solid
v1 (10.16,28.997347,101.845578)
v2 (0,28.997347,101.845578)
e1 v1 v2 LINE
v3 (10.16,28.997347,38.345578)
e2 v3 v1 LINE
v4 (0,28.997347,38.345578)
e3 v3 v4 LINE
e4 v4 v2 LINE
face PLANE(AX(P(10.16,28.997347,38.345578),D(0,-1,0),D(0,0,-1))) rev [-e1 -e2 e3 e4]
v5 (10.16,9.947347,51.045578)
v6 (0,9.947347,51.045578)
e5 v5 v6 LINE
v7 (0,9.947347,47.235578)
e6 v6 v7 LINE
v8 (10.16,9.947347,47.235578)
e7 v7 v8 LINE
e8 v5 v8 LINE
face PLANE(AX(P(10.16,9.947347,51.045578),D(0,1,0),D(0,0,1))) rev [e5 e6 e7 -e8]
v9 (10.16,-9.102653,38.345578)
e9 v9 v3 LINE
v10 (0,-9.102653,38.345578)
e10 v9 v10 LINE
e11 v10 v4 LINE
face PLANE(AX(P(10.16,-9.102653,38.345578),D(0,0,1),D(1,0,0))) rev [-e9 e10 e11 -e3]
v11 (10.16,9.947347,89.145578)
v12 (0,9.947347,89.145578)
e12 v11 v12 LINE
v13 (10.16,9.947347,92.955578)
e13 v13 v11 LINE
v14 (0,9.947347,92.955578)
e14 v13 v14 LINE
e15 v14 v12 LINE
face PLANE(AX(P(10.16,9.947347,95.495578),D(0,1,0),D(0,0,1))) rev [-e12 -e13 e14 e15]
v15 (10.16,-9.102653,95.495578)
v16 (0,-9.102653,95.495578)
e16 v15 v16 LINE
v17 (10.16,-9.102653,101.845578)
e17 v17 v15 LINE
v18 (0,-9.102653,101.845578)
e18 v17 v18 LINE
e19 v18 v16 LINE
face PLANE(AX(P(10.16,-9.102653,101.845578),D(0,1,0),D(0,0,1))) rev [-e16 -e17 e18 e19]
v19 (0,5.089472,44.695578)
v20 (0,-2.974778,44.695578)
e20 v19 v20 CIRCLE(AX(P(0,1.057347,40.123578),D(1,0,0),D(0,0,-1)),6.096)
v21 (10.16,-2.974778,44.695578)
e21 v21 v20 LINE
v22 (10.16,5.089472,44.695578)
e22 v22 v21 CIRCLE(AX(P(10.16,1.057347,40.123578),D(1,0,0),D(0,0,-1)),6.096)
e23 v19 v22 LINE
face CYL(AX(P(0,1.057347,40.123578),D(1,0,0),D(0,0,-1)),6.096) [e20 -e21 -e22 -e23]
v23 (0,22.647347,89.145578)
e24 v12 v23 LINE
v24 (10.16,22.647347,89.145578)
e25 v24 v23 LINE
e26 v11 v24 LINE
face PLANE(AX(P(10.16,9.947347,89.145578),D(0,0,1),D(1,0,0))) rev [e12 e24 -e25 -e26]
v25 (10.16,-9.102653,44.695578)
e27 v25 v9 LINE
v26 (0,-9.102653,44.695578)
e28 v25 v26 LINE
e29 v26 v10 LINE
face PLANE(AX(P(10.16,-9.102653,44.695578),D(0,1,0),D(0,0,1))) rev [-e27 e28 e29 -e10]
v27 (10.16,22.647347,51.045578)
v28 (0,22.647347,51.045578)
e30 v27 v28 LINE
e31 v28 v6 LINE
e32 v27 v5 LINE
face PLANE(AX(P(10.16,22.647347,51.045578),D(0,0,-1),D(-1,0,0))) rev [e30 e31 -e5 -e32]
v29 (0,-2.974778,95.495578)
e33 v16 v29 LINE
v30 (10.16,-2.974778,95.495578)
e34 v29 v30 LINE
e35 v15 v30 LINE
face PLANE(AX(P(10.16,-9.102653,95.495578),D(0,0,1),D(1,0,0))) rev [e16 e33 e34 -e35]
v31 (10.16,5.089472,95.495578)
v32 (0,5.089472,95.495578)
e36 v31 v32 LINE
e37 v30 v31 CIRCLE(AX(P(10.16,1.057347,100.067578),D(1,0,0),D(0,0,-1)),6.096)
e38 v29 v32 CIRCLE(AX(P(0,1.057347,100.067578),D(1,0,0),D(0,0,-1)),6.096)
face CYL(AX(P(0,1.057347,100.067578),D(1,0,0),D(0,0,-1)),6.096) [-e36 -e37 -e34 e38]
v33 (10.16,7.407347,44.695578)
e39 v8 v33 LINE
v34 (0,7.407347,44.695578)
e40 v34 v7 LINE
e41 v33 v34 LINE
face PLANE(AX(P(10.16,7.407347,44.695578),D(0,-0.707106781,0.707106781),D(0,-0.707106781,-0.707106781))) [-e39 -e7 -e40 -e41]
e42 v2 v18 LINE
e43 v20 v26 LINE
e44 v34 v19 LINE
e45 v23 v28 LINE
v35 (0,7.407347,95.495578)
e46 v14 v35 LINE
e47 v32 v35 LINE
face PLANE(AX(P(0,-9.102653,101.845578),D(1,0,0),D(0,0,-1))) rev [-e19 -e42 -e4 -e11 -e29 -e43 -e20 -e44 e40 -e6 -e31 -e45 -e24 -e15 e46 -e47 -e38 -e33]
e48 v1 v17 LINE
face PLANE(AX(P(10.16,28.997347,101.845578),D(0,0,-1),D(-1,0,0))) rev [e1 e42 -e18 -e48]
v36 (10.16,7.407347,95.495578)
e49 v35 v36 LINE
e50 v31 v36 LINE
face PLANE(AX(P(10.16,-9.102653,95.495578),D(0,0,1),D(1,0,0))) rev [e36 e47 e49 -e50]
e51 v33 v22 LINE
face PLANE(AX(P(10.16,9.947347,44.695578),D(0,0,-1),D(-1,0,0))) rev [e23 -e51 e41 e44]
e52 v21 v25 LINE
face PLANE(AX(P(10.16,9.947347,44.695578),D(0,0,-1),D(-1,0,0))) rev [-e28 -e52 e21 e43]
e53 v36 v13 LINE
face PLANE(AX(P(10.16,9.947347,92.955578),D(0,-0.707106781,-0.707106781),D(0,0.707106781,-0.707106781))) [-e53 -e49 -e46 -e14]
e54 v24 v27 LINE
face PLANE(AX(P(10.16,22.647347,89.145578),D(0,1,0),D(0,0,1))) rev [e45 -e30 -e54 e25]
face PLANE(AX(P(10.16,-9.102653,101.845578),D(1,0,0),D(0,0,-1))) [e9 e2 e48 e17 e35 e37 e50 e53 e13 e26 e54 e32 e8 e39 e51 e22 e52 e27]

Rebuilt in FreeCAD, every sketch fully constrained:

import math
import FreeCAD as App
import Part
import Sketcher
Q = App.Units.Quantity


def edges_at(feature, points):
    """Names of the edges that pass closest to the given points."""
    edges = feature.Shape.Edges
    near = lambda p: min(range(len(edges)), key=lambda i: edges[i].distToShape(Part.Vertex(*p))[0])
    return sorted({f"Edge{near(p) + 1}" for p in points})

doc = App.newDocument("Part")
body = doc.addObject("PartDesign::Body", "Body")

# Sketch on YZ plane
sketch1 = body.newObject("Sketcher::SketchObject", "Sketch")
sketch1.AttachmentSupport = (doc.getObject("YZ_Plane"), [""])
sketch1.MapMode = "FlatFace"
sketch1.addGeometry(Part.LineSegment(App.Vector(-9, 102, 0), App.Vector(-9, 95, 0)), False)
sketch1.addGeometry(Part.LineSegment(App.Vector(-9, 95, 0), App.Vector(10, 95, 0)), False)
sketch1.addGeometry(Part.LineSegment(App.Vector(10, 95, 0), App.Vector(10, 89, 0)), False)
sketch1.addGeometry(Part.LineSegment(App.Vector(10, 89, 0), App.Vector(23, 89, 0)), False)
sketch1.addGeometry(Part.LineSegment(App.Vector(23, 89, 0), App.Vector(23, 51, 0)), False)
sketch1.addGeometry(Part.LineSegment(App.Vector(23, 51, 0), App.Vector(10, 51, 0)), False)
sketch1.addGeometry(Part.LineSegment(App.Vector(10, 51, 0), App.Vector(10, 45, 0)), False)
sketch1.addGeometry(Part.LineSegment(App.Vector(10, 45, 0), App.Vector(-9, 45, 0)), False)
sketch1.addGeometry(Part.LineSegment(App.Vector(-9, 45, 0), App.Vector(-9, 38, 0)), False)
sketch1.addGeometry(Part.LineSegment(App.Vector(-9, 38, 0), App.Vector(29, 38, 0)), False)
sketch1.addGeometry(Part.LineSegment(App.Vector(29, 38, 0), App.Vector(29, 102, 0)), False)
sketch1.addGeometry(Part.LineSegment(App.Vector(29, 102, 0), App.Vector(-9, 102, 0)), False)
sketch1.addConstraint(Sketcher.Constraint("Coincident", 0, 2, 1, 1))
sketch1.addConstraint(Sketcher.Constraint("Coincident", 1, 2, 2, 1))
sketch1.addConstraint(Sketcher.Constraint("Coincident", 2, 2, 3, 1))
sketch1.addConstraint(Sketcher.Constraint("Coincident", 3, 2, 4, 1))
sketch1.addConstraint(Sketcher.Constraint("Coincident", 4, 2, 5, 1))
sketch1.addConstraint(Sketcher.Constraint("Coincident", 5, 2, 6, 1))
sketch1.addConstraint(Sketcher.Constraint("Coincident", 6, 2, 7, 1))
sketch1.addConstraint(Sketcher.Constraint("Coincident", 7, 2, 8, 1))
sketch1.addConstraint(Sketcher.Constraint("Coincident", 8, 2, 9, 1))
sketch1.addConstraint(Sketcher.Constraint("Coincident", 9, 2, 10, 1))
sketch1.addConstraint(Sketcher.Constraint("Coincident", 10, 2, 11, 1))
sketch1.addConstraint(Sketcher.Constraint("Coincident", 11, 2, 0, 1))
sketch1.addConstraint(Sketcher.Constraint("Vertical", 0))
sketch1.addConstraint(Sketcher.Constraint("Horizontal", 1))
sketch1.addConstraint(Sketcher.Constraint("Vertical", 2))
sketch1.addConstraint(Sketcher.Constraint("Horizontal", 3))
sketch1.addConstraint(Sketcher.Constraint("Vertical", 4))
sketch1.addConstraint(Sketcher.Constraint("Horizontal", 5))
sketch1.addConstraint(Sketcher.Constraint("Vertical", 6))
sketch1.addConstraint(Sketcher.Constraint("Horizontal", 7))
sketch1.addConstraint(Sketcher.Constraint("Vertical", 8))
sketch1.addConstraint(Sketcher.Constraint("Horizontal", 9))
sketch1.addConstraint(Sketcher.Constraint("Vertical", 10))
sketch1.addConstraint(Sketcher.Constraint("Horizontal", 11))
sketch1.addConstraint(Sketcher.Constraint("Vertical", 2, 2, 5, 2))
sketch1.addConstraint(Sketcher.Constraint("Vertical", 0, 2, 7, 2))
sketch1.addConstraint(Sketcher.Constraint("Equal", 0, 2))
sketch1.addConstraint(Sketcher.Constraint("Equal", 11, 4))
sketch1.addConstraint(Sketcher.Constraint("Equal", 2, 6))
sketch1.addConstraint(Sketcher.Constraint("Equal", 6, 8))
sketch1.addConstraint(Sketcher.Constraint("DistanceX", 3, 1, 3, 2, Q("0.5 in")))
sketch1.addConstraint(Sketcher.Constraint("DistanceX", 9, 1, 9, 2, Q("1.5 in")))
sketch1.addConstraint(Sketcher.Constraint("DistanceY", 10, 1, 10, 2, Q("2.5 in")))
sketch1.addConstraint(Sketcher.Constraint("DistanceX", 1, 1, 1, 2, Q("0.75 in")))
sketch1.addConstraint(Sketcher.Constraint("DistanceX", 0, 2, -1, 1, 9.102653))
sketch1.addConstraint(Sketcher.Constraint("DistanceY", -1, 1, 0, 2, 95.495578))
pad1 = body.newObject("PartDesign::Pad", "Pad")
pad1.Profile = sketch1
pad1.Length = Q("0.4 in")

# Sketch on YZ plane
sketch2 = body.newObject("Sketcher::SketchObject", "Sketch001")
sketch2.AttachmentSupport = (doc.getObject("YZ_Plane"), [""])
sketch2.MapMode = "FlatFace"
sketch2.AttachmentOffset = App.Placement(App.Vector(0, 0, 0.4 * 25.4), App.Rotation())
sketch2.addGeometry(Part.LineSegment(App.Vector(7, 102, 0), App.Vector(-5, 102, 0)), False)
sketch2.addGeometry(Part.ArcOfCircle(Part.Circle(App.Vector(1, 100, 0), App.Vector(0, 0, 1), 6), math.radians(163), math.radians(377)), False)
sketch2.addGeometry(Part.LineSegment(App.Vector(-5, 38, 0), App.Vector(7, 38, 0)), False)
sketch2.addGeometry(Part.ArcOfCircle(Part.Circle(App.Vector(1, 40, 0), App.Vector(0, 0, 1), 6), math.radians(-17), math.radians(197)), False)
sketch2.addConstraint(Sketcher.Constraint("Coincident", 0, 1, 1, 2))
sketch2.addConstraint(Sketcher.Constraint("Coincident", 1, 1, 0, 2))
sketch2.addConstraint(Sketcher.Constraint("Coincident", 2, 1, 3, 2))
sketch2.addConstraint(Sketcher.Constraint("Coincident", 3, 1, 2, 2))
sketch2.addConstraint(Sketcher.Constraint("Horizontal", 0))
sketch2.addConstraint(Sketcher.Constraint("Horizontal", 2))
sketch2.addConstraint(Sketcher.Constraint("Equal", 1, 3))
sketch2.addConstraint(Sketcher.Constraint("Vertical", 1, 3, 3, 3))
sketch2.addConstraint(Sketcher.Constraint("Vertical", 1, 1, 2, 1))
sketch2.addConstraint(Sketcher.Constraint("Radius", 1, Q("0.24 in")))
sketch2.addConstraint(Sketcher.Constraint("DistanceY", 2, 1, 1, 1, Q("2.5 in")))
sketch2.addConstraint(Sketcher.Constraint("DistanceY", 3, 3, 1, 3, Q("2.36 in")))
sketch2.addConstraint(Sketcher.Constraint("DistanceX", 1, 1, -1, 1, 4.773599))
sketch2.addConstraint(Sketcher.Constraint("DistanceY", -1, 1, 1, 3, 100.067578))
pad2 = body.newObject("PartDesign::Pad", "Pad001")
pad2.Profile = sketch2
pad2.Length = Q("0.4 in")
pad2.Reversed = True
doc.recompute()

chamfer = body.newObject("PartDesign::Chamfer", "Chamfer")
chamfer.Base = (pad2, edges_at(pad2, [(5.08, 9.947, 44.696), (5.08, 9.947, 95.496)]))
chamfer.Size = Q("0.1 in")

doc.recompute()
